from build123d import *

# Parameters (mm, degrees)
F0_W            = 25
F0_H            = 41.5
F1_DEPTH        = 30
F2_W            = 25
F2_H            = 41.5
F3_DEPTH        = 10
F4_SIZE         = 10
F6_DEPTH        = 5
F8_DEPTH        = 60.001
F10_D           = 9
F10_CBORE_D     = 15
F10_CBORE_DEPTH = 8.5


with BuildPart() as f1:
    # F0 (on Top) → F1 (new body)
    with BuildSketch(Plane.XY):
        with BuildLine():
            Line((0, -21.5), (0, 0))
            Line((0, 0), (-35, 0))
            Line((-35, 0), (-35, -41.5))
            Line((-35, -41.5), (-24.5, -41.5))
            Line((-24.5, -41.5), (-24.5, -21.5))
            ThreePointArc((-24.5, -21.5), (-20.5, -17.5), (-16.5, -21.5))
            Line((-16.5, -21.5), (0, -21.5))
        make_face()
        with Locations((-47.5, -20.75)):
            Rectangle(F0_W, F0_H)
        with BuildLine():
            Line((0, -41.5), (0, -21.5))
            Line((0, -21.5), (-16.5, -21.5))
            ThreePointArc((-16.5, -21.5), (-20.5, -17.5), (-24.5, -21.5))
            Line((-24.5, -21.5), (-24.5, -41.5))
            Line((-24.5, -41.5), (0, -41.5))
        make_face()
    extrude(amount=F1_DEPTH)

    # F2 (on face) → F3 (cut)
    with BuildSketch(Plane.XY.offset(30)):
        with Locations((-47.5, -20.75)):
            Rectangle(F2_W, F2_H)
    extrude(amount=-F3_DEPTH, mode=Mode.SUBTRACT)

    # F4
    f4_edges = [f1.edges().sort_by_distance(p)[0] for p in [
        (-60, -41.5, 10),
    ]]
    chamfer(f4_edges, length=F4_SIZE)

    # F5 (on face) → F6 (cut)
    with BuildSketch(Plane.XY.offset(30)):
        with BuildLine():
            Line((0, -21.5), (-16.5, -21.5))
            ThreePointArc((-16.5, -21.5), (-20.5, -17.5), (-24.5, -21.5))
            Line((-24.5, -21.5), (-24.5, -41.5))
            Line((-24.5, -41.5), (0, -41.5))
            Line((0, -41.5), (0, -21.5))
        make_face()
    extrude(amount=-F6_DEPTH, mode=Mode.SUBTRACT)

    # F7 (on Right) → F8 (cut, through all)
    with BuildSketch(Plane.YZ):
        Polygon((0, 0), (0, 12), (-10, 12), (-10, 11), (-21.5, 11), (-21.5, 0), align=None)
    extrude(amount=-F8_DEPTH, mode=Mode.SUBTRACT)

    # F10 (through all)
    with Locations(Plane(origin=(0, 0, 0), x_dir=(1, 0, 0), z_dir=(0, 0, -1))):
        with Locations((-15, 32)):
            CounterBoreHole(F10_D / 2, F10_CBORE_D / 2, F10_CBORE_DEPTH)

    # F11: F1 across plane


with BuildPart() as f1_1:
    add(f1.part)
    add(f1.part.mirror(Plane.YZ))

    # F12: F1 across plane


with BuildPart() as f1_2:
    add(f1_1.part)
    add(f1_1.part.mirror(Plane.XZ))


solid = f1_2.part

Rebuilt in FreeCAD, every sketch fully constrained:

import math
import FreeCAD as App
import Part
import Sketcher

V = App.Vector
Q = App.Units.Quantity


def edges_at(feature, points):
    """Names of the edges that pass closest to the given points."""
    edges = feature.Shape.Edges
    near = lambda p: min(range(len(edges)), key=lambda i: edges[i].distToShape(Part.Vertex(*p))[0])
    return sorted({f"Edge{near(p) + 1}" for p in points})


def add_polygon(sketch, points):
    """Adds a closed chain of lines whose ends are joined by coincident constraints."""
    first, n = sketch.GeometryCount, len(points)
    for a, b in zip(points, points[1:] + points[:1]):
        sketch.addGeometry(Part.LineSegment(App.Vector(*a, 0), App.Vector(*b, 0)), False)
    for i in range(n):
        sketch.addConstraint(Sketcher.Constraint("Coincident", first + i, 2, first + (i + 1) % n, 1))

doc = App.newDocument("Part")
body = doc.addObject("PartDesign::Body", "Body")

sketch1 = body.newObject("Sketcher::SketchObject", "Sketch")
sketch1.AttachmentSupport = (doc.getObject("XY_Plane"), [""])
sketch1.MapMode = "FlatFace"
add_polygon(sketch1, [(0, 0), (-60, 0), (-60, -41.5), (0, -41.5)])
sketch1.addConstraint(Sketcher.Constraint("Horizontal", 0))
sketch1.addConstraint(Sketcher.Constraint("Vertical", 1))
sketch1.addConstraint(Sketcher.Constraint("Horizontal", 2))
sketch1.addConstraint(Sketcher.Constraint("Vertical", 3))
sketch1.addConstraint(Sketcher.Constraint("Coincident", 3, 2, -1, 1))
sketch1.addConstraint(Sketcher.Constraint("DistanceX", 0, 2, 0, 1, Q("60 mm")))
sketch1.addConstraint(Sketcher.Constraint("DistanceY", 1, 2, 1, 1, Q("41.5 mm")))
pad1 = body.newObject("PartDesign::Pad", "Pad")
pad1.Profile = sketch1
pad1.Length = 30

sketch2 = body.newObject("Sketcher::SketchObject", "Sketch001")
sketch2.AttachmentSupport = (doc.getObject("XY_Plane"), [""])
sketch2.MapMode = "FlatFace"
sketch2.AttachmentOffset = App.Placement(V(0, 0, 30), App.Rotation())
add_polygon(sketch2, [(-60, 0), (-60, -41.5), (-35, -41.5), (-35, 0)])
sketch2.addConstraint(Sketcher.Constraint("Vertical", 0))
sketch2.addConstraint(Sketcher.Constraint("Horizontal", 1))
sketch2.addConstraint(Sketcher.Constraint("Vertical", 2))
sketch2.addConstraint(Sketcher.Constraint("Horizontal", 3))
sketch2.addConstraint(Sketcher.Constraint("PointOnObject", 2, 2, -1))
sketch2.addConstraint(Sketcher.Constraint("DistanceX", 1, 1, 1, 2, Q("25 mm")))
sketch2.addConstraint(Sketcher.Constraint("DistanceY", 0, 2, 0, 1, Q("41.5 mm")))
sketch2.addConstraint(Sketcher.Constraint("DistanceX", 0, 2, -1, 1, Q("60 mm")))
pocket1 = body.newObject("PartDesign::Pocket", "Pocket")
pocket1.Profile = sketch2
pocket1.Length = 10
doc.recompute()

chamfer = body.newObject("PartDesign::Chamfer", "Chamfer")
chamfer.Base = (pocket1, edges_at(pocket1, [(-60, -41.5, 10)]))
chamfer.Size = 10

sketch3 = body.newObject("Sketcher::SketchObject", "Sketch002")
sketch3.AttachmentSupport = (doc.getObject("XY_Plane"), [""])
sketch3.MapMode = "FlatFace"
sketch3.AttachmentOffset = App.Placement(V(0, 0, 30), App.Rotation())
sketch3.addGeometry(Part.LineSegment(V(0, -21.5, 0), V(-16.5, -21.5, 0)), False)
sketch3.addGeometry(Part.ArcOfCircle(Part.Circle(V(-20.5, -21.5, 0), V(0, 0, 1), 4), math.radians(0), math.radians(180)), False)
sketch3.addGeometry(Part.LineSegment(V(-24.5, -21.5, 0), V(-24.5, -41.5, 0)), False)
sketch3.addGeometry(Part.LineSegment(V(-24.5, -41.5, 0), V(0, -41.5, 0)), False)
sketch3.addGeometry(Part.LineSegment(V(0, -41.5, 0), V(0, -21.5, 0)), False)
sketch3.addConstraint(Sketcher.Constraint("Coincident", 0, 2, 1, 1))
sketch3.addConstraint(Sketcher.Constraint("Tangent", 1, 2, 2, 1))
sketch3.addConstraint(Sketcher.Constraint("Coincident", 2, 2, 3, 1))
sketch3.addConstraint(Sketcher.Constraint("Coincident", 3, 2, 4, 1))
sketch3.addConstraint(Sketcher.Constraint("Coincident", 4, 2, 0, 1))
sketch3.addConstraint(Sketcher.Constraint("Horizontal", 0))
sketch3.addConstraint(Sketcher.Constraint("Vertical", 2))
sketch3.addConstraint(Sketcher.Constraint("Horizontal", 3))
sketch3.addConstraint(Sketcher.Constraint("Vertical", 4))
sketch3.addConstraint(Sketcher.Constraint("PointOnObject", 3, 2, -2))
sketch3.addConstraint(Sketcher.Constraint("Horizontal", 1, 3, 0, 2))
sketch3.addConstraint(Sketcher.Constraint("Radius", 1, Q("4 mm")))
sketch3.addConstraint(Sketcher.Constraint("DistanceY", 2, 2, 2, 1, Q("20 mm")))
sketch3.addConstraint(Sketcher.Constraint("DistanceX", 0, 2, 0, 1, Q("16.5 mm")))
sketch3.addConstraint(Sketcher.Constraint("DistanceY", 1, 3, -1, 1, Q("21.5 mm")))
pocket2 = body.newObject("PartDesign::Pocket", "Pocket001")
pocket2.Profile = sketch3
pocket2.Length = 5

sketch4 = body.newObject("Sketcher::SketchObject", "Sketch003")
sketch4.AttachmentSupport = (doc.getObject("YZ_Plane"), [""])
sketch4.MapMode = "FlatFace"
add_polygon(sketch4, [(0, 0), (0, 12), (-10, 12), (-10, 11), (-21.5, 11), (-21.5, 0)])
sketch4.addConstraint(Sketcher.Constraint("Vertical", 0))
sketch4.addConstraint(Sketcher.Constraint("Horizontal", 1))
sketch4.addConstraint(Sketcher.Constraint("Vertical", 2))
sketch4.addConstraint(Sketcher.Constraint("Horizontal", 3))
sketch4.addConstraint(Sketcher.Constraint("Vertical", 4))
sketch4.addConstraint(Sketcher.Constraint("Horizontal", 5))
sketch4.addConstraint(Sketcher.Constraint("Coincident", 5, 2, -1, 1))
sketch4.addConstraint(Sketcher.Constraint("DistanceX", 1, 2, 1, 1, Q("10 mm")))
sketch4.addConstraint(Sketcher.Constraint("DistanceY", 0, 1, 0, 2, Q("12 mm")))
sketch4.addConstraint(Sketcher.Constraint("DistanceY", 2, 2, 2, 1, Q("1 mm")))
sketch4.addConstraint(Sketcher.Constraint("DistanceX", 3, 2, 3, 1, Q("11.5 mm")))
pocket3 = body.newObject("PartDesign::Pocket", "Pocket002")
pocket3.Profile = sketch4
pocket3.Type = "ThroughAll"

sketch5 = body.newObject("Sketcher::SketchObject", "Sketch004")
sketch5.AttachmentSupport = (doc.getObject("XY_Plane"), [""])
sketch5.MapMode = "FlatFace"
sketch5.addGeometry(Part.Circle(V(-15, -32, 0), V(0, 0, 1), 4.5), False)
sketch5.addConstraint(Sketcher.Constraint("Diameter", 0, Q("9 mm")))
sketch5.addConstraint(Sketcher.Constraint("DistanceX", 0, 3, -1, 1, Q("15 mm")))
sketch5.addConstraint(Sketcher.Constraint("DistanceY", 0, 3, -1, 1, Q("32 mm")))
doc.recompute()
hole = body.newObject("PartDesign::Hole", "Hole")
hole.Profile = sketch5
hole.ThreadType = "None"
hole.Diameter = 9
hole.DepthType = "ThroughAll"
hole.HoleCutType = "Counterbore"
hole.HoleCutDiameter = 15
hole.HoleCutDepth = 8.5
hole.Reversed = True
body2 = doc.addObject("PartDesign::Body", "Body001")
doc.recompute()

body2.BaseFeature = body
doc.recompute()

mirroring = doc.addObject("Part::Mirroring", "Mirroring")
mirroring.Source = body
mirroring.Base = V(0, 0, 0)
mirroring.Normal = V(1, 0, 0)
body3 = doc.addObject("PartDesign::Body", "Body002")
body3.BaseFeature = mirroring
boolean = body2.newObject("PartDesign::Boolean", "Boolean")
boolean.Type = "Fuse"
boolean.addObjects([body3])
doc.recompute()
body4 = doc.addObject("PartDesign::Body", "Body003")
doc.recompute()

body4.BaseFeature = body2
doc.recompute()

mirroring2 = doc.addObject("Part::Mirroring", "Mirroring001")
mirroring2.Source = body2
mirroring2.Base = V(0, 0, 0)
mirroring2.Normal = V(0, -1, 0)
body5 = doc.addObject("PartDesign::Body", "Body004")
body5.BaseFeature = mirroring2
boolean2 = body4.newObject("PartDesign::Boolean", "Boolean001")
boolean2.Type = "Fuse"
boolean2.addObjects([body5])
doc.recompute()
mirroring.Visibility = False
mirroring2.Visibility = False

doc.recompute()
